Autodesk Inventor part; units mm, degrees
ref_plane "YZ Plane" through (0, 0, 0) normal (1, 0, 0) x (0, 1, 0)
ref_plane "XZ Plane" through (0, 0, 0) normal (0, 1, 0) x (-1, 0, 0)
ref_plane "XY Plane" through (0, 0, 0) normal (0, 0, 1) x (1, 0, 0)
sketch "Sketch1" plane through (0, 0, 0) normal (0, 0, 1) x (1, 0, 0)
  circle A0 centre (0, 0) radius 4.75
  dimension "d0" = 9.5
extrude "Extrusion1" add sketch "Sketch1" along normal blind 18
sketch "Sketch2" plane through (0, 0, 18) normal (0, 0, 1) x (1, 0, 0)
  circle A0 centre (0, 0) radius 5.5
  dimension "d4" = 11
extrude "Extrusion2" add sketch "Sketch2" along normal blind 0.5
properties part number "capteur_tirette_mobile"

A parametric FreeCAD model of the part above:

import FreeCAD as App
import Part
import Sketcher
from FreeCAD import Vector

doc = App.newDocument("Part")
body = doc.addObject("PartDesign::Body", "Body")

# Sketch on XY plane
sketch1 = body.newObject("Sketcher::SketchObject", "Sketch")
sketch1.AttachmentSupport = (doc.getObject("XY_Plane"), [""])
sketch1.MapMode = "FlatFace"
sketch1.addGeometry(Part.Circle(Vector(0, 0, 0), Vector(0, 0, 1), 4.8), False)
sketch1.addConstraint(Sketcher.Constraint("Coincident", 0, 3, -1, 1))
sketch1.addConstraint(Sketcher.Constraint("Diameter", 0, 9.5))
pad1 = body.newObject("PartDesign::Pad", "Pad")
pad1.Profile = sketch1
pad1.Length = 18

# Sketch on XY plane
sketch2 = body.newObject("Sketcher::SketchObject", "Sketch001")
sketch2.AttachmentSupport = (doc.getObject("XY_Plane"), [""])
sketch2.MapMode = "FlatFace"
sketch2.AttachmentOffset = App.Placement(Vector(0, 0, 18), App.Rotation())
sketch2.addGeometry(Part.Circle(Vector(0, 0, 0), Vector(0, 0, 1), 6), False)
sketch2.addConstraint(Sketcher.Constraint("Coincident", 0, 3, -1, 1))
sketch2.addConstraint(Sketcher.Constraint("Diameter", 0, 11.0))
pad2 = body.newObject("PartDesign::Pad", "Pad001")
pad2.Profile = sketch2
pad2.Length = 0.5

doc.recompute()
